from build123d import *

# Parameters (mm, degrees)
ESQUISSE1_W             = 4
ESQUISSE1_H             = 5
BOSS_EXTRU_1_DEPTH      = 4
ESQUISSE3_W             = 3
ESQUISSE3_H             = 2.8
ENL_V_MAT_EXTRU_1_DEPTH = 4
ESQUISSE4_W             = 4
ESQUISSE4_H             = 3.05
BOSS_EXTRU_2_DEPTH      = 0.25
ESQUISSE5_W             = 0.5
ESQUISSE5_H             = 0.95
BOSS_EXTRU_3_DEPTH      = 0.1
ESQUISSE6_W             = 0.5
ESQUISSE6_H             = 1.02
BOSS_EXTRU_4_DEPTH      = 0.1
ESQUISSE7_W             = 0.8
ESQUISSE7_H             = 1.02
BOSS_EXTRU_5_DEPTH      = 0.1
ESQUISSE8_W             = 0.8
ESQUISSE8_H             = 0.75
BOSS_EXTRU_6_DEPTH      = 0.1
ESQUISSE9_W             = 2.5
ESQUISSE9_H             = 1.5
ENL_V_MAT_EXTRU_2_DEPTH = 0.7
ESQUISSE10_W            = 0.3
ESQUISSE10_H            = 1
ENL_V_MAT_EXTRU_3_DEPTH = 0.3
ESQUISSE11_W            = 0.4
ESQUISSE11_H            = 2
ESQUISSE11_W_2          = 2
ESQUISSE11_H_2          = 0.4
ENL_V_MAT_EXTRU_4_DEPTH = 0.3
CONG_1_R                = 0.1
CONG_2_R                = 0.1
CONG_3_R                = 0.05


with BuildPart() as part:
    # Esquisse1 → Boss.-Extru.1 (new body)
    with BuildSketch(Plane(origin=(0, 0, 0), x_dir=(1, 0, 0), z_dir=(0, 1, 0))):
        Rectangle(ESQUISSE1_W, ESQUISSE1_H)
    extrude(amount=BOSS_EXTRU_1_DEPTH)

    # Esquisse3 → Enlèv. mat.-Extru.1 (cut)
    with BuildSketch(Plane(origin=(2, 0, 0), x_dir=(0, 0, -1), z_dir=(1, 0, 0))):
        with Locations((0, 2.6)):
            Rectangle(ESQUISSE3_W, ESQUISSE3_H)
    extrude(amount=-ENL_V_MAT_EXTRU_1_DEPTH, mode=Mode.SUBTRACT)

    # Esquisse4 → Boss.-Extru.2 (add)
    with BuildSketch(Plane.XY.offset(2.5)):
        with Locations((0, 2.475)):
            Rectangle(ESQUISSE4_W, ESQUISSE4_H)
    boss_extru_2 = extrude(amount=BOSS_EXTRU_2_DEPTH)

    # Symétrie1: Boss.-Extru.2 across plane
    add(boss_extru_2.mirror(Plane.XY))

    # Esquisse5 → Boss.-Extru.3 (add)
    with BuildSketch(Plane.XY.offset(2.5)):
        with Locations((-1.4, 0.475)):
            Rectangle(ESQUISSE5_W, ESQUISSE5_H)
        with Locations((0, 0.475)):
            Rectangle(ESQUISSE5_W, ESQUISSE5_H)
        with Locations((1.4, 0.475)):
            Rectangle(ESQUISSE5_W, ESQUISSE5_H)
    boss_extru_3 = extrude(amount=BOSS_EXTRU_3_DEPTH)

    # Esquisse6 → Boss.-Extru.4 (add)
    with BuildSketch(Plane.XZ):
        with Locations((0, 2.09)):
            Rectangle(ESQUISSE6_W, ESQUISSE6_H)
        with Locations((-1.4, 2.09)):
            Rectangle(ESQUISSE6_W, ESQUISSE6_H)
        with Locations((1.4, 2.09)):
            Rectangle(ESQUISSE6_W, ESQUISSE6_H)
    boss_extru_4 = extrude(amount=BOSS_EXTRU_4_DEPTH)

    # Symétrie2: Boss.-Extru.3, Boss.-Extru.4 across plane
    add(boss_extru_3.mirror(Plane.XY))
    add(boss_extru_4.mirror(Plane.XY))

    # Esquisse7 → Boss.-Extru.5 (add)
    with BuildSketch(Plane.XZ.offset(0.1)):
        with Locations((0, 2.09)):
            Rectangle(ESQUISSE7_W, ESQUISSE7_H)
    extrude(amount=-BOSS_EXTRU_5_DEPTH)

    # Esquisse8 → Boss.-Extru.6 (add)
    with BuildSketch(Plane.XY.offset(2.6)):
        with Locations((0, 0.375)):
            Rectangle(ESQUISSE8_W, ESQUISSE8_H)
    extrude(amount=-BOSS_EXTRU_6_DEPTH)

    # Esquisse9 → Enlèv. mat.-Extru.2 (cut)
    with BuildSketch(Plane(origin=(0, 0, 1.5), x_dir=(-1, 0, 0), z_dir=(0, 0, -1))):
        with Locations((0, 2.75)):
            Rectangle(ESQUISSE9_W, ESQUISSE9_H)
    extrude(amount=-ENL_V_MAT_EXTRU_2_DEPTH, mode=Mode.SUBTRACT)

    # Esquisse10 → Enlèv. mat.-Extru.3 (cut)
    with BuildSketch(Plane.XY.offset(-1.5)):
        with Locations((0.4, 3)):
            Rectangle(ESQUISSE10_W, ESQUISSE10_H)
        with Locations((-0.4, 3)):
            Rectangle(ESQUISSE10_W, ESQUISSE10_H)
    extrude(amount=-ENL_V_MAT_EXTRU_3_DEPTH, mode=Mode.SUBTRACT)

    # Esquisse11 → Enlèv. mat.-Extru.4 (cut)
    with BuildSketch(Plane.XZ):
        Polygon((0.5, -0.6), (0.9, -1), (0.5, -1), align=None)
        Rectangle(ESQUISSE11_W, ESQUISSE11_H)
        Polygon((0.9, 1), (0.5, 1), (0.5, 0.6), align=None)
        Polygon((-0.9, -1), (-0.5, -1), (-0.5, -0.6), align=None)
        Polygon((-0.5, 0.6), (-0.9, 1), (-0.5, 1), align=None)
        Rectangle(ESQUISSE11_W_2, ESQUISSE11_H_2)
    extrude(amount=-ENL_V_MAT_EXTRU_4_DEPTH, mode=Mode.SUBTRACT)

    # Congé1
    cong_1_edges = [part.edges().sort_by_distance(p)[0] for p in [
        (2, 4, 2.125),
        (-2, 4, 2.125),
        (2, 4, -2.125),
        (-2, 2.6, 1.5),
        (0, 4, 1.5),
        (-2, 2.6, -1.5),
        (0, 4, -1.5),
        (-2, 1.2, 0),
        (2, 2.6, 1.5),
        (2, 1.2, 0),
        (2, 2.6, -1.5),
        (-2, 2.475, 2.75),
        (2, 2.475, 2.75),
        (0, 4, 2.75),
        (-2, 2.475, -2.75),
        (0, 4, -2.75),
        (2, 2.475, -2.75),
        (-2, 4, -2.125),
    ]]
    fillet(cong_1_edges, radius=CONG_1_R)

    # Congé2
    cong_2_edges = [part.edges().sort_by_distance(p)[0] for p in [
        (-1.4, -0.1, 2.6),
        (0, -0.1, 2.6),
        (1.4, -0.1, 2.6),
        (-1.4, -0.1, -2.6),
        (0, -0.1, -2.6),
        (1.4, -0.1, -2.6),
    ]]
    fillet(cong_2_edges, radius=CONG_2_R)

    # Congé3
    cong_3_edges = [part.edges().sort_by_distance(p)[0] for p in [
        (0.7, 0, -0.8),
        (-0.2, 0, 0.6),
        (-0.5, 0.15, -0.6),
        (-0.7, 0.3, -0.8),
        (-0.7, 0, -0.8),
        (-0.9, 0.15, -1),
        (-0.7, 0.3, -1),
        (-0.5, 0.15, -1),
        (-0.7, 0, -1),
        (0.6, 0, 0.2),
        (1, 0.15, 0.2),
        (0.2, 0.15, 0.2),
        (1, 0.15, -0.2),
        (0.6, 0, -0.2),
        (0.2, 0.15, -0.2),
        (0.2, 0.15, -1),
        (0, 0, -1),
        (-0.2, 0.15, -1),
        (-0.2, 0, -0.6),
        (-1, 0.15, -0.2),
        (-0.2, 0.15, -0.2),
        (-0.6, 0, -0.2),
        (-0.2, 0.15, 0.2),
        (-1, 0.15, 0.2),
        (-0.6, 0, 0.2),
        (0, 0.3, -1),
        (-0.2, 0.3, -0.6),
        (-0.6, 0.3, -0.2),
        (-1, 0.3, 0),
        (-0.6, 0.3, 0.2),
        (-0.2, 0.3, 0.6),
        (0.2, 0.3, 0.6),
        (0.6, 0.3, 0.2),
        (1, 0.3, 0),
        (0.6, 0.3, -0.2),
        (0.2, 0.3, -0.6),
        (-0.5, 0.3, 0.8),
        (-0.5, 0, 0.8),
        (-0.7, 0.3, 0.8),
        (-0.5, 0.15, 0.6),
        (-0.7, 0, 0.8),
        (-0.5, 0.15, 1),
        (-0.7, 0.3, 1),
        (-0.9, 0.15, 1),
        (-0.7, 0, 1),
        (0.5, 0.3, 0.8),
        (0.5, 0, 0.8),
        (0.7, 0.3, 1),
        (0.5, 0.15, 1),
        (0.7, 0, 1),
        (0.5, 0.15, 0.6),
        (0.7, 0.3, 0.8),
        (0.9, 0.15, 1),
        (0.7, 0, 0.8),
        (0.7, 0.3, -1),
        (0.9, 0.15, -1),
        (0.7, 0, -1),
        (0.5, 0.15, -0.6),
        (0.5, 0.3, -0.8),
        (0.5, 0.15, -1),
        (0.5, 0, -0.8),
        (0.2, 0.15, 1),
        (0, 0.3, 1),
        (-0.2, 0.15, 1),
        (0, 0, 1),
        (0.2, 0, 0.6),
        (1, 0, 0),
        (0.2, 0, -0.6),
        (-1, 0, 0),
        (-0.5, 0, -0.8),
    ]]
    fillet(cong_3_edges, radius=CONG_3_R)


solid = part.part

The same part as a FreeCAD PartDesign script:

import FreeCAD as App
import Part
import Sketcher
Q = App.Units.Quantity


def edges_at(feature, points):
    """Names of the edges that pass closest to the given points."""
    edges = feature.Shape.Edges
    near = lambda p: min(range(len(edges)), key=lambda i: edges[i].distToShape(Part.Vertex(*p))[0])
    return sorted({f"Edge{near(p) + 1}" for p in points})

doc = App.newDocument("Part")
params = doc.addObject("Spreadsheet::Sheet", "Params")
for row, (alias, value) in enumerate([
    ("sketch1_width", "4 mm"),
    ("sketch1_height", "5 mm"),
    ("pad1_length", "4 mm"),
    ("sketch2_height", "3 mm"),
    ("sketch2_width", "2.8 mm"),
    ("pocket1_length", "4 mm"),
    ("sketch3_width", "4 mm"),
    ("sketch3_height", "3.05 mm"),
    ("pad2_length", "0.25 mm"),
    ("sketch4_width", "0.5 mm"),
    ("sketch4_height", "0.95 mm"),
    ("pad3_length", "0.1 mm"),
    ("sketch5_width", "0.5 mm"),
    ("sketch5_height", "1.02 mm"),
    ("pad4_length", "0.1 mm"),
    ("sketch6_width", "0.8 mm"),
    ("sketch6_height", "1.02 mm"),
    ("pad5_length", "0.1 mm"),
    ("sketch7_width", "0.8 mm"),
    ("sketch7_height", "0.75 mm"),
    ("pad6_length", "0.1 mm"),
    ("sketch8_width", "2.5 mm"),
    ("sketch8_height", "1.5 mm"),
    ("pocket2_length", "0.7 mm"),
    ("sketch9_height", "1 mm"),
    ("sketch9_width", "0.3 mm"),
    ("pocket3_length", "0.3 mm"),
    ("sketch10_width", "0.4 mm"),
    ("sketch10_width2", "0.8 mm"),
    ("pocket4_length", "0.3 mm"),
    ("fillet_radius", "0.1 mm"),
    ("fillet2_radius", "0.1 mm"),
    ("fillet3_radius", "0.05 mm"),
], start=1):
    params.set(f"A{row}", alias)
    params.set(f"B{row}", "=" + value)
    params.setAlias(f"B{row}", alias)

body = doc.addObject("PartDesign::Body", "Body")

# Sketch on XZ plane
sketch1 = body.newObject("Sketcher::SketchObject", "Sketch")
sketch1.AttachmentSupport = (doc.getObject("XZ_Plane"), [""])
sketch1.MapMode = "FlatFace"
sketch1.addGeometry(Part.LineSegment(App.Vector(-2, -2.5, 0), App.Vector(-2, 2.5, 0)), False)
sketch1.addGeometry(Part.LineSegment(App.Vector(-2, 2.5, 0), App.Vector(2, 2.5, 0)), False)
sketch1.addGeometry(Part.LineSegment(App.Vector(2, 2.5, 0), App.Vector(2, -2.5, 0)), False)
sketch1.addGeometry(Part.LineSegment(App.Vector(2, -2.5, 0), App.Vector(-2, -2.5, 0)), False)
sketch1.addConstraint(Sketcher.Constraint("Coincident", 0, 2, 1, 1))
sketch1.addConstraint(Sketcher.Constraint("Coincident", 1, 2, 2, 1))
sketch1.addConstraint(Sketcher.Constraint("Coincident", 2, 2, 3, 1))
sketch1.addConstraint(Sketcher.Constraint("Coincident", 3, 2, 0, 1))
sketch1.addConstraint(Sketcher.Constraint("Vertical", 0))
sketch1.addConstraint(Sketcher.Constraint("Horizontal", 1))
sketch1.addConstraint(Sketcher.Constraint("Vertical", 2))
sketch1.addConstraint(Sketcher.Constraint("Horizontal", 3))
sketch1.addConstraint(Sketcher.Constraint("Symmetric", 0, 2, 2, 2, -1, 1))
sketch1.addConstraint(Sketcher.Constraint("DistanceX", 1, 1, 1, 2, Q("4 mm")))
sketch1.addConstraint(Sketcher.Constraint("DistanceY", 0, 1, 0, 2, Q("5 mm")))
sketch1.setExpression("Constraints[9]", "Params.sketch1_width")
sketch1.setExpression("Constraints[10]", "Params.sketch1_height")
pad1 = body.newObject("PartDesign::Pad", "Pad")
pad1.Profile = sketch1
pad1.setExpression("Length", "Params.pad1_length")
pad1.Reversed = True

# Sketch on YZ plane
sketch2 = body.newObject("Sketcher::SketchObject", "Sketch001")
sketch2.AttachmentSupport = (doc.getObject("YZ_Plane"), [""])
sketch2.MapMode = "FlatFace"
sketch2.AttachmentOffset = App.Placement(App.Vector(0, 0, 2), App.Rotation())
sketch2.addGeometry(Part.LineSegment(App.Vector(4, 1.5, 0), App.Vector(1.2, 1.5, 0)), False)
sketch2.addGeometry(Part.LineSegment(App.Vector(1.2, 1.5, 0), App.Vector(1.2, -1.5, 0)), False)
sketch2.addGeometry(Part.LineSegment(App.Vector(1.2, -1.5, 0), App.Vector(4, -1.5, 0)), False)
sketch2.addGeometry(Part.LineSegment(App.Vector(4, -1.5, 0), App.Vector(4, 1.5, 0)), False)
sketch2.addConstraint(Sketcher.Constraint("Coincident", 0, 2, 1, 1))
sketch2.addConstraint(Sketcher.Constraint("Coincident", 1, 2, 2, 1))
sketch2.addConstraint(Sketcher.Constraint("Coincident", 2, 2, 3, 1))
sketch2.addConstraint(Sketcher.Constraint("Coincident", 3, 2, 0, 1))
sketch2.addConstraint(Sketcher.Constraint("Horizontal", 0))
sketch2.addConstraint(Sketcher.Constraint("Vertical", 1))
sketch2.addConstraint(Sketcher.Constraint("Horizontal", 2))
sketch2.addConstraint(Sketcher.Constraint("Vertical", 3))
sketch2.addConstraint(Sketcher.Constraint("DistanceY", 1, 2, 1, 1, Q("3 mm")))
sketch2.addConstraint(Sketcher.Constraint("DistanceX", 0, 2, 0, 1, Q("2.8 mm")))
sketch2.addConstraint(Sketcher.Constraint("DistanceX", -1, 1, 2, 2, Q("4 mm")))
sketch2.addConstraint(Sketcher.Constraint("DistanceY", -1, 1, 0, 2, Q("1.5 mm")))
sketch2.setExpression("Constraints[8]", "Params.sketch2_height")
sketch2.setExpression("Constraints[9]", "Params.sketch2_width")
pocket1 = body.newObject("PartDesign::Pocket", "Pocket")
pocket1.Profile = sketch2
pocket1.setExpression("Length", "Params.pocket1_length")

# Sketch on XY plane
sketch3 = body.newObject("Sketcher::SketchObject", "Sketch002")
sketch3.AttachmentSupport = (doc.getObject("XY_Plane"), [""])
sketch3.MapMode = "FlatFace"
sketch3.AttachmentOffset = App.Placement(App.Vector(0, 0, 2.5), App.Rotation())
sketch3.addGeometry(Part.LineSegment(App.Vector(-2, 4, 0), App.Vector(-2, 0.95, 0)), False)
sketch3.addGeometry(Part.LineSegment(App.Vector(-2, 0.95, 0), App.Vector(2, 0.95, 0)), False)
sketch3.addGeometry(Part.LineSegment(App.Vector(2, 0.95, 0), App.Vector(2, 4, 0)), False)
sketch3.addGeometry(Part.LineSegment(App.Vector(2, 4, 0), App.Vector(-2, 4, 0)), False)
sketch3.addConstraint(Sketcher.Constraint("Coincident", 0, 2, 1, 1))
sketch3.addConstraint(Sketcher.Constraint("Coincident", 1, 2, 2, 1))
sketch3.addConstraint(Sketcher.Constraint("Coincident", 2, 2, 3, 1))
sketch3.addConstraint(Sketcher.Constraint("Coincident", 3, 2, 0, 1))
sketch3.addConstraint(Sketcher.Constraint("Vertical", 0))
sketch3.addConstraint(Sketcher.Constraint("Horizontal", 1))
sketch3.addConstraint(Sketcher.Constraint("Vertical", 2))
sketch3.addConstraint(Sketcher.Constraint("Horizontal", 3))
sketch3.addConstraint(Sketcher.Constraint("DistanceX", 1, 1, 1, 2, Q("4 mm")))
sketch3.addConstraint(Sketcher.Constraint("DistanceX", 0, 2, -1, 1, Q("2 mm")))
sketch3.addConstraint(Sketcher.Constraint("DistanceY", -1, 1, 2, 2, Q("4 mm")))
sketch3.addConstraint(Sketcher.Constraint("DistanceY", 0, 2, 0, 1, Q("3.05 mm")))
sketch3.setExpression("Constraints[8]", "Params.sketch3_width")
sketch3.setExpression("Constraints[11]", "Params.sketch3_height")
pad2 = body.newObject("PartDesign::Pad", "Pad001")
pad2.Profile = sketch3
pad2.setExpression("Length", "Params.pad2_length")
doc.recompute()

mirrored = body.newObject("PartDesign::Mirrored", "Mirrored")
mirrored.Originals = [pad2]
mirrored.MirrorPlane = (doc.getObject("XY_Plane"), [""])
body.Tip = mirrored

# Sketch on XY plane
sketch4 = body.newObject("Sketcher::SketchObject", "Sketch003")
sketch4.AttachmentSupport = (doc.getObject("XY_Plane"), [""])
sketch4.MapMode = "FlatFace"
sketch4.AttachmentOffset = App.Placement(App.Vector(0, 0, 2.5), App.Rotation())
sketch4.addGeometry(Part.LineSegment(App.Vector(-1.65, 0.95, 0), App.Vector(-1.65, 0, 0)), False)
sketch4.addGeometry(Part.LineSegment(App.Vector(-1.65, 0, 0), App.Vector(-1.15, 0, 0)), False)
sketch4.addGeometry(Part.LineSegment(App.Vector(-1.15, 0, 0), App.Vector(-1.15, 0.95, 0)), False)
sketch4.addGeometry(Part.LineSegment(App.Vector(-1.15, 0.95, 0), App.Vector(-1.65, 0.95, 0)), False)
sketch4.addGeometry(Part.LineSegment(App.Vector(-0.25, 0.95, 0), App.Vector(-0.25, 0, 0)), False)
sketch4.addGeometry(Part.LineSegment(App.Vector(-0.25, 0, 0), App.Vector(0.25, 0, 0)), False)
sketch4.addGeometry(Part.LineSegment(App.Vector(0.25, 0, 0), App.Vector(0.25, 0.95, 0)), False)
sketch4.addGeometry(Part.LineSegment(App.Vector(0.25, 0.95, 0), App.Vector(-0.25, 0.95, 0)), False)
sketch4.addGeometry(Part.LineSegment(App.Vector(1.15, 0.95, 0), App.Vector(1.15, 0, 0)), False)
sketch4.addGeometry(Part.LineSegment(App.Vector(1.15, 0, 0), App.Vector(1.65, 0, 0)), False)
sketch4.addGeometry(Part.LineSegment(App.Vector(1.65, 0, 0), App.Vector(1.65, 0.95, 0)), False)
sketch4.addGeometry(Part.LineSegment(App.Vector(1.65, 0.95, 0), App.Vector(1.15, 0.95, 0)), False)
sketch4.addConstraint(Sketcher.Constraint("Coincident", 0, 2, 1, 1))
sketch4.addConstraint(Sketcher.Constraint("Coincident", 1, 2, 2, 1))
sketch4.addConstraint(Sketcher.Constraint("Coincident", 2, 2, 3, 1))
sketch4.addConstraint(Sketcher.Constraint("Coincident", 3, 2, 0, 1))
sketch4.addConstraint(Sketcher.Constraint("Coincident", 4, 2, 5, 1))
sketch4.addConstraint(Sketcher.Constraint("Coincident", 5, 2, 6, 1))
sketch4.addConstraint(Sketcher.Constraint("Coincident", 6, 2, 7, 1))
sketch4.addConstraint(Sketcher.Constraint("Coincident", 7, 2, 4, 1))
sketch4.addConstraint(Sketcher.Constraint("Coincident", 8, 2, 9, 1))
sketch4.addConstraint(Sketcher.Constraint("Coincident", 9, 2, 10, 1))
sketch4.addConstraint(Sketcher.Constraint("Coincident", 10, 2, 11, 1))
sketch4.addConstraint(Sketcher.Constraint("Coincident", 11, 2, 8, 1))
sketch4.addConstraint(Sketcher.Constraint("Vertical", 0))
sketch4.addConstraint(Sketcher.Constraint("Horizontal", 1))
sketch4.addConstraint(Sketcher.Constraint("Vertical", 2))
sketch4.addConstraint(Sketcher.Constraint("Horizontal", 3))
sketch4.addConstraint(Sketcher.Constraint("Vertical", 4))
sketch4.addConstraint(Sketcher.Constraint("Horizontal", 5))
sketch4.addConstraint(Sketcher.Constraint("Vertical", 6))
sketch4.addConstraint(Sketcher.Constraint("Horizontal", 7))
sketch4.addConstraint(Sketcher.Constraint("Vertical", 8))
sketch4.addConstraint(Sketcher.Constraint("Horizontal", 9))
sketch4.addConstraint(Sketcher.Constraint("Vertical", 10))
sketch4.addConstraint(Sketcher.Constraint("Horizontal", 11))
sketch4.addConstraint(Sketcher.Constraint("Symmetric", 4, 2, 5, 2, -1, 1))
sketch4.addConstraint(Sketcher.Constraint("Symmetric", 1, 2, 8, 2, -1, 1))
sketch4.addConstraint(Sketcher.Constraint("Symmetric", 0, 2, 9, 2, -2))
sketch4.addConstraint(Sketcher.Constraint("Horizontal", 3, 2, 6, 2))
sketch4.addConstraint(Sketcher.Constraint("Horizontal", 7, 2, 10, 2))
sketch4.addConstraint(Sketcher.Constraint("Equal", 3, 5))
sketch4.addConstraint(Sketcher.Constraint("DistanceX", 1, 1, 1, 2, Q("0.5 mm")))
sketch4.addConstraint(Sketcher.Constraint("DistanceY", 0, 2, 0, 1, Q("0.95 mm")))
sketch4.addConstraint(Sketcher.Constraint("DistanceX", 1, 2, 4, 2, Q("0.9 mm")))
sketch4.setExpression("Constraints[30]", "Params.sketch4_width")
sketch4.setExpression("Constraints[31]", "Params.sketch4_height")
pad3 = body.newObject("PartDesign::Pad", "Pad002")
pad3.Profile = sketch4
pad3.setExpression("Length", "Params.pad3_length")

# Sketch on XZ plane
sketch5 = body.newObject("Sketcher::SketchObject", "Sketch004")
sketch5.AttachmentSupport = (doc.getObject("XZ_Plane"), [""])
sketch5.MapMode = "FlatFace"
sketch5.addGeometry(Part.LineSegment(App.Vector(-0.25, 2.6, 0), App.Vector(-0.25, 1.58, 0)), False)
sketch5.addGeometry(Part.LineSegment(App.Vector(-0.25, 1.58, 0), App.Vector(0.25, 1.58, 0)), False)
sketch5.addGeometry(Part.LineSegment(App.Vector(0.25, 1.58, 0), App.Vector(0.25, 2.6, 0)), False)
sketch5.addGeometry(Part.LineSegment(App.Vector(0.25, 2.6, 0), App.Vector(-0.25, 2.6, 0)), False)
sketch5.addGeometry(Part.LineSegment(App.Vector(-1.65, 2.6, 0), App.Vector(-1.65, 1.58, 0)), False)
sketch5.addGeometry(Part.LineSegment(App.Vector(-1.65, 1.58, 0), App.Vector(-1.15, 1.58, 0)), False)
sketch5.addGeometry(Part.LineSegment(App.Vector(-1.15, 1.58, 0), App.Vector(-1.15, 2.6, 0)), False)
sketch5.addGeometry(Part.LineSegment(App.Vector(-1.15, 2.6, 0), App.Vector(-1.65, 2.6, 0)), False)
sketch5.addGeometry(Part.LineSegment(App.Vector(1.15, 2.6, 0), App.Vector(1.15, 1.58, 0)), False)
sketch5.addGeometry(Part.LineSegment(App.Vector(1.15, 1.58, 0), App.Vector(1.65, 1.58, 0)), False)
sketch5.addGeometry(Part.LineSegment(App.Vector(1.65, 1.58, 0), App.Vector(1.65, 2.6, 0)), False)
sketch5.addGeometry(Part.LineSegment(App.Vector(1.65, 2.6, 0), App.Vector(1.15, 2.6, 0)), False)
sketch5.addConstraint(Sketcher.Constraint("Coincident", 0, 2, 1, 1))
sketch5.addConstraint(Sketcher.Constraint("Coincident", 1, 2, 2, 1))
sketch5.addConstraint(Sketcher.Constraint("Coincident", 2, 2, 3, 1))
sketch5.addConstraint(Sketcher.Constraint("Coincident", 3, 2, 0, 1))
sketch5.addConstraint(Sketcher.Constraint("Coincident", 4, 2, 5, 1))
sketch5.addConstraint(Sketcher.Constraint("Coincident", 5, 2, 6, 1))
sketch5.addConstraint(Sketcher.Constraint("Coincident", 6, 2, 7, 1))
sketch5.addConstraint(Sketcher.Constraint("Coincident", 7, 2, 4, 1))
sketch5.addConstraint(Sketcher.Constraint("Coincident", 8, 2, 9, 1))
sketch5.addConstraint(Sketcher.Constraint("Coincident", 9, 2, 10, 1))
sketch5.addConstraint(Sketcher.Constraint("Coincident", 10, 2, 11, 1))
sketch5.addConstraint(Sketcher.Constraint("Coincident", 11, 2, 8, 1))
sketch5.addConstraint(Sketcher.Constraint("Vertical", 0))
sketch5.addConstraint(Sketcher.Constraint("Horizontal", 1))
sketch5.addConstraint(Sketcher.Constraint("Vertical", 2))
sketch5.addConstraint(Sketcher.Constraint("Horizontal", 3))
sketch5.addConstraint(Sketcher.Constraint("Vertical", 4))
sketch5.addConstraint(Sketcher.Constraint("Horizontal", 5))
sketch5.addConstraint(Sketcher.Constraint("Vertical", 6))
sketch5.addConstraint(Sketcher.Constraint("Horizontal", 7))
sketch5.addConstraint(Sketcher.Constraint("Vertical", 8))
sketch5.addConstraint(Sketcher.Constraint("Horizontal", 9))
sketch5.addConstraint(Sketcher.Constraint("Vertical", 10))
sketch5.addConstraint(Sketcher.Constraint("Horizontal", 11))
sketch5.addConstraint(Sketcher.Constraint("Symmetric", 5, 2, 8, 2, -2))
sketch5.addConstraint(Sketcher.Constraint("Symmetric", 7, 2, 10, 2, -2))
sketch5.addConstraint(Sketcher.Constraint("Horizontal", 1, 2, 4, 2))
sketch5.addConstraint(Sketcher.Constraint("Horizontal", 3, 2, 6, 2))
sketch5.addConstraint(Sketcher.Constraint("Equal", 3, 5))
sketch5.addConstraint(Sketcher.Constraint("DistanceX", 1, 1, 1, 2, Q("0.5 mm")))
sketch5.addConstraint(Sketcher.Constraint("DistanceY", 0, 2, 0, 1, Q("1.02 mm")))
sketch5.addConstraint(Sketcher.Constraint("DistanceY", -1, 1, 2, 2, Q("2.6 mm")))
sketch5.addConstraint(Sketcher.Constraint("DistanceX", 4, 2, 0, 2, Q("1.4 mm")))
sketch5.addConstraint(Sketcher.Constraint("DistanceX", 1, 2, 8, 2, Q("0.9 mm")))
sketch5.setExpression("Constraints[29]", "Params.sketch5_width")
sketch5.setExpression("Constraints[30]", "Params.sketch5_height")
pad4 = body.newObject("PartDesign::Pad", "Pad003")
pad4.Profile = sketch5
pad4.setExpression("Length", "Params.pad4_length")
doc.recompute()

mirrored2 = body.newObject("PartDesign::Mirrored", "Mirrored001")
mirrored2.Originals = [pad3, pad4]
mirrored2.MirrorPlane = (doc.getObject("XY_Plane"), [""])
body.Tip = mirrored2

# Sketch on XZ plane
sketch6 = body.newObject("Sketcher::SketchObject", "Sketch005")
sketch6.AttachmentSupport = (doc.getObject("XZ_Plane"), [""])
sketch6.MapMode = "FlatFace"
sketch6.AttachmentOffset = App.Placement(App.Vector(0, 0, 0.1), App.Rotation())
sketch6.addGeometry(Part.LineSegment(App.Vector(-0.4, 2.6, 0), App.Vector(-0.4, 1.58, 0)), False)
sketch6.addGeometry(Part.LineSegment(App.Vector(-0.4, 1.58, 0), App.Vector(0.4, 1.58, 0)), False)
sketch6.addGeometry(Part.LineSegment(App.Vector(0.4, 1.58, 0), App.Vector(0.4, 2.6, 0)), False)
sketch6.addGeometry(Part.LineSegment(App.Vector(0.4, 2.6, 0), App.Vector(-0.4, 2.6, 0)), False)
sketch6.addConstraint(Sketcher.Constraint("Coincident", 0, 2, 1, 1))
sketch6.addConstraint(Sketcher.Constraint("Coincident", 1, 2, 2, 1))
sketch6.addConstraint(Sketcher.Constraint("Coincident", 2, 2, 3, 1))
sketch6.addConstraint(Sketcher.Constraint("Coincident", 3, 2, 0, 1))
sketch6.addConstraint(Sketcher.Constraint("Vertical", 0))
sketch6.addConstraint(Sketcher.Constraint("Horizontal", 1))
sketch6.addConstraint(Sketcher.Constraint("Vertical", 2))
sketch6.addConstraint(Sketcher.Constraint("Horizontal", 3))
sketch6.addConstraint(Sketcher.Constraint("DistanceX", 1, 1, 1, 2, Q("0.8 mm")))
sketch6.addConstraint(Sketcher.Constraint("DistanceY", 0, 2, 0, 1, Q("1.02 mm")))
sketch6.addConstraint(Sketcher.Constraint("DistanceX", 0, 2, -1, 1, Q("0.4 mm")))
sketch6.addConstraint(Sketcher.Constraint("DistanceY", -1, 1, 2, 2, Q("2.6 mm")))
sketch6.setExpression("Constraints[8]", "Params.sketch6_width")
sketch6.setExpression("Constraints[9]", "Params.sketch6_height")
pad5 = body.newObject("PartDesign::Pad", "Pad004")
pad5.Profile = sketch6
pad5.setExpression("Length", "Params.pad5_length")
pad5.Reversed = True

# Sketch on XY plane
sketch7 = body.newObject("Sketcher::SketchObject", "Sketch006")
sketch7.AttachmentSupport = (doc.getObject("XY_Plane"), [""])
sketch7.MapMode = "FlatFace"
sketch7.AttachmentOffset = App.Placement(App.Vector(0, 0, 2.6), App.Rotation())
sketch7.addGeometry(Part.LineSegment(App.Vector(-0.4, 0.75, 0), App.Vector(-0.4, 0, 0)), False)
sketch7.addGeometry(Part.LineSegment(App.Vector(-0.4, 0, 0), App.Vector(0.4, 0, 0)), False)
sketch7.addGeometry(Part.LineSegment(App.Vector(0.4, 0, 0), App.Vector(0.4, 0.75, 0)), False)
sketch7.addGeometry(Part.LineSegment(App.Vector(0.4, 0.75, 0), App.Vector(-0.4, 0.75, 0)), False)
sketch7.addConstraint(Sketcher.Constraint("Coincident", 0, 2, 1, 1))
sketch7.addConstraint(Sketcher.Constraint("Coincident", 1, 2, 2, 1))
sketch7.addConstraint(Sketcher.Constraint("Coincident", 2, 2, 3, 1))
sketch7.addConstraint(Sketcher.Constraint("Coincident", 3, 2, 0, 1))
sketch7.addConstraint(Sketcher.Constraint("Vertical", 0))
sketch7.addConstraint(Sketcher.Constraint("Horizontal", 1))
sketch7.addConstraint(Sketcher.Constraint("Vertical", 2))
sketch7.addConstraint(Sketcher.Constraint("Horizontal", 3))
sketch7.addConstraint(Sketcher.Constraint("Symmetric", 0, 2, 1, 2, -1, 1))
sketch7.addConstraint(Sketcher.Constraint("DistanceX", 1, 1, 1, 2, Q("0.8 mm")))
sketch7.addConstraint(Sketcher.Constraint("DistanceY", 0, 2, 0, 1, Q("0.75 mm")))
sketch7.setExpression("Constraints[9]", "Params.sketch7_width")
sketch7.setExpression("Constraints[10]", "Params.sketch7_height")
pad6 = body.newObject("PartDesign::Pad", "Pad005")
pad6.Profile = sketch7
pad6.setExpression("Length", "Params.pad6_length")
pad6.Reversed = True

# Sketch on XY plane
sketch8 = body.newObject("Sketcher::SketchObject", "Sketch007")
sketch8.AttachmentSupport = (doc.getObject("XY_Plane"), [""])
sketch8.MapMode = "FlatFace"
sketch8.AttachmentOffset = App.Placement(App.Vector(0, 0, 1.5), App.Rotation())
sketch8.addGeometry(Part.LineSegment(App.Vector(1.25, 3.5, 0), App.Vector(1.25, 2, 0)), False)
sketch8.addGeometry(Part.LineSegment(App.Vector(1.25, 2, 0), App.Vector(-1.25, 2, 0)), False)
sketch8.addGeometry(Part.LineSegment(App.Vector(-1.25, 2, 0), App.Vector(-1.25, 3.5, 0)), False)
sketch8.addGeometry(Part.LineSegment(App.Vector(-1.25, 3.5, 0), App.Vector(1.25, 3.5, 0)), False)
sketch8.addConstraint(Sketcher.Constraint("Coincident", 0, 2, 1, 1))
sketch8.addConstraint(Sketcher.Constraint("Coincident", 1, 2, 2, 1))
sketch8.addConstraint(Sketcher.Constraint("Coincident", 2, 2, 3, 1))
sketch8.addConstraint(Sketcher.Constraint("Coincident", 3, 2, 0, 1))
sketch8.addConstraint(Sketcher.Constraint("Vertical", 0))
sketch8.addConstraint(Sketcher.Constraint("Horizontal", 1))
sketch8.addConstraint(Sketcher.Constraint("Vertical", 2))
sketch8.addConstraint(Sketcher.Constraint("Horizontal", 3))
sketch8.addConstraint(Sketcher.Constraint("DistanceX", 1, 2, 1, 1, Q("2.5 mm")))
sketch8.addConstraint(Sketcher.Constraint("DistanceY", 0, 2, 0, 1, Q("1.5 mm")))
sketch8.addConstraint(Sketcher.Constraint("DistanceY", -1, 1, 0, 2, Q("2 mm")))
sketch8.addConstraint(Sketcher.Constraint("DistanceX", -1, 1, 0, 2, Q("1.25 mm")))
sketch8.setExpression("Constraints[8]", "Params.sketch8_width")
sketch8.setExpression("Constraints[9]", "Params.sketch8_height")
pocket2 = body.newObject("PartDesign::Pocket", "Pocket001")
pocket2.Profile = sketch8
pocket2.setExpression("Length", "Params.pocket2_length")
pocket2.Reversed = True

# Sketch on XY plane
sketch9 = body.newObject("Sketcher::SketchObject", "Sketch008")
sketch9.AttachmentSupport = (doc.getObject("XY_Plane"), [""])
sketch9.MapMode = "FlatFace"
sketch9.AttachmentOffset = App.Placement(App.Vector(0, 0, -1.5), App.Rotation())
sketch9.addGeometry(Part.LineSegment(App.Vector(0.25, 3.5, 0), App.Vector(0.25, 2.5, 0)), False)
sketch9.addGeometry(Part.LineSegment(App.Vector(0.25, 2.5, 0), App.Vector(0.55, 2.5, 0)), False)
sketch9.addGeometry(Part.LineSegment(App.Vector(0.55, 2.5, 0), App.Vector(0.55, 3.5, 0)), False)
sketch9.addGeometry(Part.LineSegment(App.Vector(0.55, 3.5, 0), App.Vector(0.25, 3.5, 0)), False)
sketch9.addGeometry(Part.LineSegment(App.Vector(-0.55, 3.5, 0), App.Vector(-0.55, 2.5, 0)), False)
sketch9.addGeometry(Part.LineSegment(App.Vector(-0.55, 2.5, 0), App.Vector(-0.25, 2.5, 0)), False)
sketch9.addGeometry(Part.LineSegment(App.Vector(-0.25, 2.5, 0), App.Vector(-0.25, 3.5, 0)), False)
sketch9.addGeometry(Part.LineSegment(App.Vector(-0.25, 3.5, 0), App.Vector(-0.55, 3.5, 0)), False)
sketch9.addConstraint(Sketcher.Constraint("Coincident", 0, 2, 1, 1))
sketch9.addConstraint(Sketcher.Constraint("Coincident", 1, 2, 2, 1))
sketch9.addConstraint(Sketcher.Constraint("Coincident", 2, 2, 3, 1))
sketch9.addConstraint(Sketcher.Constraint("Coincident", 3, 2, 0, 1))
sketch9.addConstraint(Sketcher.Constraint("Coincident", 4, 2, 5, 1))
sketch9.addConstraint(Sketcher.Constraint("Coincident", 5, 2, 6, 1))
sketch9.addConstraint(Sketcher.Constraint("Coincident", 6, 2, 7, 1))
sketch9.addConstraint(Sketcher.Constraint("Coincident", 7, 2, 4, 1))
sketch9.addConstraint(Sketcher.Constraint("Vertical", 0))
sketch9.addConstraint(Sketcher.Constraint("Horizontal", 1))
sketch9.addConstraint(Sketcher.Constraint("Vertical", 2))
sketch9.addConstraint(Sketcher.Constraint("Horizontal", 3))
sketch9.addConstraint(Sketcher.Constraint("Vertical", 4))
sketch9.addConstraint(Sketcher.Constraint("Horizontal", 5))
sketch9.addConstraint(Sketcher.Constraint("Vertical", 6))
sketch9.addConstraint(Sketcher.Constraint("Horizontal", 7))
sketch9.addConstraint(Sketcher.Constraint("Symmetric", 1, 2, 4, 2, -2))
sketch9.addConstraint(Sketcher.Constraint("Symmetric", 3, 2, 6, 2, -2))
sketch9.addConstraint(Sketcher.Constraint("DistanceY", 0, 2, 0, 1, Q("1 mm")))
sketch9.addConstraint(Sketcher.Constraint("DistanceX", 1, 1, 1, 2, Q("0.3 mm")))
sketch9.addConstraint(Sketcher.Constraint("DistanceY", -1, 1, 0, 2, Q("2.5 mm")))
sketch9.addConstraint(Sketcher.Constraint("DistanceX", 4, 2, 0, 2, Q("0.8 mm")))
sketch9.setExpression("Constraints[18]", "Params.sketch9_height")
sketch9.setExpression("Constraints[19]", "Params.sketch9_width")
pocket3 = body.newObject("PartDesign::Pocket", "Pocket002")
pocket3.Profile = sketch9
pocket3.setExpression("Length", "Params.pocket3_length")

# Sketch on XZ plane
sketch10 = body.newObject("Sketcher::SketchObject", "Sketch009")
sketch10.AttachmentSupport = (doc.getObject("XZ_Plane"), [""])
sketch10.MapMode = "FlatFace"
sketch10.addGeometry(Part.LineSegment(App.Vector(0.9, -1, 0), App.Vector(0.5, -0.6, 0)), False)
sketch10.addGeometry(Part.LineSegment(App.Vector(0.5, -0.6, 0), App.Vector(0.5, -1, 0)), False)
sketch10.addGeometry(Part.LineSegment(App.Vector(0.5, -1, 0), App.Vector(0.9, -1, 0)), False)
sketch10.addGeometry(Part.LineSegment(App.Vector(-0.2, -0.2, 0), App.Vector(-0.2, -1, 0)), False)
sketch10.addGeometry(Part.LineSegment(App.Vector(-0.2, -1, 0), App.Vector(0.2, -1, 0)), False)
sketch10.addGeometry(Part.LineSegment(App.Vector(0.2, -1, 0), App.Vector(0.2, -0.2, 0)), False)
sketch10.addGeometry(Part.LineSegment(App.Vector(0.2, -0.2, 0), App.Vector(1, -0.2, 0)), False)
sketch10.addGeometry(Part.LineSegment(App.Vector(1, -0.2, 0), App.Vector(1, 0.2, 0)), False)
sketch10.addGeometry(Part.LineSegment(App.Vector(1, 0.2, 0), App.Vector(0.2, 0.2, 0)), False)
sketch10.addGeometry(Part.LineSegment(App.Vector(0.2, 0.2, 0), App.Vector(0.2, 1, 0)), False)
sketch10.addGeometry(Part.LineSegment(App.Vector(0.2, 1, 0), App.Vector(-0.2, 1, 0)), False)
sketch10.addGeometry(Part.LineSegment(App.Vector(-0.2, 1, 0), App.Vector(-0.2, 0.2, 0)), False)
sketch10.addGeometry(Part.LineSegment(App.Vector(-0.2, 0.2, 0), App.Vector(-1, 0.2, 0)), False)
sketch10.addGeometry(Part.LineSegment(App.Vector(-1, 0.2, 0), App.Vector(-1, -0.2, 0)), False)
sketch10.addGeometry(Part.LineSegment(App.Vector(-1, -0.2, 0), App.Vector(-0.2, -0.2, 0)), False)
sketch10.addGeometry(Part.LineSegment(App.Vector(0.9, 1, 0), App.Vector(0.5, 1, 0)), False)
sketch10.addGeometry(Part.LineSegment(App.Vector(0.5, 1, 0), App.Vector(0.5, 0.6, 0)), False)
sketch10.addGeometry(Part.LineSegment(App.Vector(0.5, 0.6, 0), App.Vector(0.9, 1, 0)), False)
sketch10.addGeometry(Part.LineSegment(App.Vector(-0.9, -1, 0), App.Vector(-0.5, -1, 0)), False)
sketch10.addGeometry(Part.LineSegment(App.Vector(-0.5, -1, 0), App.Vector(-0.5, -0.6, 0)), False)
sketch10.addGeometry(Part.LineSegment(App.Vector(-0.5, -0.6, 0), App.Vector(-0.9, -1, 0)), False)
sketch10.addGeometry(Part.LineSegment(App.Vector(-0.9, 1, 0), App.Vector(-0.5, 0.6, 0)), False)
sketch10.addGeometry(Part.LineSegment(App.Vector(-0.5, 0.6, 0), App.Vector(-0.5, 1, 0)), False)
sketch10.addGeometry(Part.LineSegment(App.Vector(-0.5, 1, 0), App.Vector(-0.9, 1, 0)), False)
sketch10.addConstraint(Sketcher.Constraint("Coincident", 0, 2, 1, 1))
sketch10.addConstraint(Sketcher.Constraint("Coincident", 1, 2, 2, 1))
sketch10.addConstraint(Sketcher.Constraint("Coincident", 2, 2, 0, 1))
sketch10.addConstraint(Sketcher.Constraint("Coincident", 3, 2, 4, 1))
sketch10.addConstraint(Sketcher.Constraint("Coincident", 4, 2, 5, 1))
sketch10.addConstraint(Sketcher.Constraint("Coincident", 5, 2, 6, 1))
sketch10.addConstraint(Sketcher.Constraint("Coincident", 6, 2, 7, 1))
sketch10.addConstraint(Sketcher.Constraint("Coincident", 7, 2, 8, 1))
sketch10.addConstraint(Sketcher.Constraint("Coincident", 8, 2, 9, 1))
sketch10.addConstraint(Sketcher.Constraint("Coincident", 9, 2, 10, 1))
sketch10.addConstraint(Sketcher.Constraint("Coincident", 10, 2, 11, 1))
sketch10.addConstraint(Sketcher.Constraint("Coincident", 11, 2, 12, 1))
sketch10.addConstraint(Sketcher.Constraint("Coincident", 12, 2, 13, 1))
sketch10.addConstraint(Sketcher.Constraint("Coincident", 13, 2, 14, 1))
sketch10.addConstraint(Sketcher.Constraint("Coincident", 14, 2, 3, 1))
sketch10.addConstraint(Sketcher.Constraint("Coincident", 15, 2, 16, 1))
sketch10.addConstraint(Sketcher.Constraint("Coincident", 16, 2, 17, 1))
sketch10.addConstraint(Sketcher.Constraint("Coincident", 17, 2, 15, 1))
sketch10.addConstraint(Sketcher.Constraint("Coincident", 18, 2, 19, 1))
sketch10.addConstraint(Sketcher.Constraint("Coincident", 19, 2, 20, 1))
sketch10.addConstraint(Sketcher.Constraint("Coincident", 20, 2, 18, 1))
sketch10.addConstraint(Sketcher.Constraint("Coincident", 21, 2, 22, 1))
sketch10.addConstraint(Sketcher.Constraint("Coincident", 22, 2, 23, 1))
sketch10.addConstraint(Sketcher.Constraint("Coincident", 23, 2, 21, 1))
sketch10.addConstraint(Sketcher.Constraint("Vertical", 1))
sketch10.addConstraint(Sketcher.Constraint("Horizontal", 2))
sketch10.addConstraint(Sketcher.Constraint("Vertical", 3))
sketch10.addConstraint(Sketcher.Constraint("Horizontal", 4))
sketch10.addConstraint(Sketcher.Constraint("Vertical", 5))
sketch10.addConstraint(Sketcher.Constraint("Horizontal", 6))
sketch10.addConstraint(Sketcher.Constraint("Vertical", 7))
sketch10.addConstraint(Sketcher.Constraint("Horizontal", 8))
sketch10.addConstraint(Sketcher.Constraint("Vertical", 9))
sketch10.addConstraint(Sketcher.Constraint("Horizontal", 10))
sketch10.addConstraint(Sketcher.Constraint("Vertical", 11))
sketch10.addConstraint(Sketcher.Constraint("Horizontal", 12))
sketch10.addConstraint(Sketcher.Constraint("Vertical", 13))
sketch10.addConstraint(Sketcher.Constraint("Horizontal", 14))
sketch10.addConstraint(Sketcher.Constraint("Horizontal", 15))
sketch10.addConstraint(Sketcher.Constraint("Vertical", 16))
sketch10.addConstraint(Sketcher.Constraint("Horizontal", 18))
sketch10.addConstraint(Sketcher.Constraint("Vertical", 19))
sketch10.addConstraint(Sketcher.Constraint("Vertical", 22))
sketch10.addConstraint(Sketcher.Constraint("Horizontal", 23))
sketch10.addConstraint(Sketcher.Constraint("Symmetric", 3, 2, 9, 2, -1, 1))
sketch10.addConstraint(Sketcher.Constraint("Symmetric", 5, 2, 11, 2, -1, 1))
sketch10.addConstraint(Sketcher.Constraint("Symmetric", 7, 2, 13, 2, -1, 1))
sketch10.addConstraint(Sketcher.Constraint("Symmetric", 15, 2, 18, 2, -1, 1))
sketch10.addConstraint(Sketcher.Constraint("Symmetric", 0, 2, 21, 2, -1, 1))
sketch10.addConstraint(Sketcher.Constraint("Symmetric", 2, 2, 23, 2, -1, 1))
sketch10.addConstraint(Sketcher.Constraint("Symmetric", 8, 2, 11, 2, -2))
sketch10.addConstraint(Sketcher.Constraint("Symmetric", 1, 2, 18, 2, -2))
sketch10.addConstraint(Sketcher.Constraint("Perpendicular", 0, 17))
sketch10.addConstraint(Sketcher.Constraint("Parallel", 17, 20))
sketch10.addConstraint(Sketcher.Constraint("Horizontal", 2, 2, 3, 2))
sketch10.addConstraint(Sketcher.Constraint("Horizontal", 0, 2, 19, 2))
sketch10.addConstraint(Sketcher.Constraint("Horizontal", 16, 2, 21, 2))
sketch10.addConstraint(Sketcher.Constraint("Vertical", 2, 2, 17, 2))
sketch10.addConstraint(Sketcher.Constraint("Equal", 2, 4))
sketch10.addConstraint(Sketcher.Constraint("Equal", 14, 3))
sketch10.addConstraint(Sketcher.Constraint("Equal", 1, 7))
sketch10.addConstraint(Sketcher.Constraint("DistanceX", 2, 1, 2, 2, Q("0.4 mm")))
sketch10.addConstraint(Sketcher.Constraint("DistanceX", 6, 1, 6, 2, Q("0.8 mm")))
sketch10.addConstraint(Sketcher.Constraint("DistanceX", 18, 2, 1, 2, Q("1 mm")))
sketch10.setExpression("Constraints[61]", "Params.sketch10_width")
sketch10.setExpression("Constraints[62]", "Params.sketch10_width2")
pocket4 = body.newObject("PartDesign::Pocket", "Pocket003")
pocket4.Profile = sketch10
pocket4.setExpression("Length", "Params.pocket4_length")
doc.recompute()

fillet = body.newObject("PartDesign::Fillet", "Fillet")
fillet.Base = (pocket4, edges_at(pocket4, [
    (2, 4, 2.125),
    (-2, 4, 2.125),
    (2, 4, -2.125),
    (-2, 2.6, 1.5),
    (0, 4, 1.5),
    (-2, 2.6, -1.5),
    (0, 4, -1.5),
    (-2, 1.2, 0),
    (2, 2.6, 1.5),
    (2, 1.2, 0),
    (2, 2.6, -1.5),
    (-2, 2.475, 2.75),
    (2, 2.475, 2.75),
    (0, 4, 2.75),
    (-2, 2.475, -2.75),
    (0, 4, -2.75),
    (2, 2.475, -2.75),
    (-2, 4, -2.125),
]))
fillet.setExpression("Radius", "Params.fillet_radius")
doc.recompute()

fillet2 = body.newObject("PartDesign::Fillet", "Fillet001")
fillet2.Base = (fillet, edges_at(fillet, [
    (-1.4, -0.1, 2.6),
    (0, -0.1, 2.6),
    (1.4, -0.1, 2.6),
    (-1.4, -0.1, -2.6),
    (0, -0.1, -2.6),
    (1.4, -0.1, -2.6),
]))
fillet2.setExpression("Radius", "Params.fillet2_radius")
doc.recompute()

fillet3 = body.newObject("PartDesign::Fillet", "Fillet002")
fillet3.Base = (fillet2, edges_at(fillet2, [
    (0.7, 0, -0.8),
    (-0.2, 0, 0.6),
    (-0.5, 0.15, -0.6),
    (-0.7, 0.3, -0.8),
    (-0.7, 0, -0.8),
    (-0.9, 0.15, -1),
    (-0.7, 0.3, -1),
    (-0.5, 0.15, -1),
    (-0.7, 0, -1),
    (0.6, 0, 0.2),
    (1, 0.15, 0.2),
    (0.2, 0.15, 0.2),
    (1, 0.15, -0.2),
    (0.6, 0, -0.2),
    (0.2, 0.15, -0.2),
    (0.2, 0.15, -1),
    (0, 0, -1),
    (-0.2, 0.15, -1),
    (-0.2, 0, -0.6),
    (-1, 0.15, -0.2),
    (-0.2, 0.15, -0.2),
    (-0.6, 0, -0.2),
    (-0.2, 0.15, 0.2),
    (-1, 0.15, 0.2),
    (-0.6, 0, 0.2),
    (0, 0.3, -1),
    (-0.2, 0.3, -0.6),
    (-0.6, 0.3, -0.2),
    (-1, 0.3, 0),
    (-0.6, 0.3, 0.2),
    (-0.2, 0.3, 0.6),
    (0.2, 0.3, 0.6),
    (0.6, 0.3, 0.2),
    (1, 0.3, 0),
    (0.6, 0.3, -0.2),
    (0.2, 0.3, -0.6),
    (-0.5, 0.3, 0.8),
    (-0.5, 0, 0.8),
    (-0.7, 0.3, 0.8),
    (-0.5, 0.15, 0.6),
    (-0.7, 0, 0.8),
    (-0.5, 0.15, 1),
    (-0.7, 0.3, 1),
    (-0.9, 0.15, 1),
    (-0.7, 0, 1),
    (0.5, 0.3, 0.8),
    (0.5, 0, 0.8),
    (0.7, 0.3, 1),
    (0.5, 0.15, 1),
    (0.7, 0, 1),
    (0.5, 0.15, 0.6),
    (0.7, 0.3, 0.8),
    (0.9, 0.15, 1),
    (0.7, 0, 0.8),
    (0.7, 0.3, -1),
    (0.9, 0.15, -1),
    (0.7, 0, -1),
    (0.5, 0.15, -0.6),
    (0.5, 0.3, -0.8),
    (0.5, 0.15, -1),
    (0.5, 0, -0.8),
    (0.2, 0.15, 1),
    (0, 0.3, 1),
    (-0.2, 0.15, 1),
    (0, 0, 1),
    (0.2, 0, 0.6),
    (1, 0, 0),
    (0.2, 0, -0.6),
    (-1, 0, 0),
    (-0.5, 0, -0.8),
]))
fillet3.setExpression("Radius", "Params.fillet3_radius")

doc.recompute()
